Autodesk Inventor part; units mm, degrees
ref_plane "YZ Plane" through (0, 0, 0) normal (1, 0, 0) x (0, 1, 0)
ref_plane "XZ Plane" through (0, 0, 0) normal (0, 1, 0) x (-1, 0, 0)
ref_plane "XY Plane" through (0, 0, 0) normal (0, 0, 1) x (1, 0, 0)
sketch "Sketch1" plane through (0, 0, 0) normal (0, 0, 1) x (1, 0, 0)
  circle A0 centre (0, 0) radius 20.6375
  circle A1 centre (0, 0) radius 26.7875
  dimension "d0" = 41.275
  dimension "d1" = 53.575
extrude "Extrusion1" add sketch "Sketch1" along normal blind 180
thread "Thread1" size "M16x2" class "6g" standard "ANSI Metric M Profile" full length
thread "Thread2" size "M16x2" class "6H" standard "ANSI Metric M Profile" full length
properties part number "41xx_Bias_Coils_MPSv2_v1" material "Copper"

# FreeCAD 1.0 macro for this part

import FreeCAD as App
import Part
import Sketcher

doc = App.newDocument("Part")
body = doc.addObject("PartDesign::Body", "Body")

# Sketch on XY plane
sketch1 = body.newObject("Sketcher::SketchObject", "Sketch")
sketch1.AttachmentSupport = (doc.getObject("XY_Plane"), [""])
sketch1.MapMode = "FlatFace"
sketch1.addGeometry([
    Part.Circle(App.Vector(0, 0, 0), App.Vector(0, 0, 1), 26.7875),
    Part.Circle(App.Vector(0, 0, 0), App.Vector(0, 0, 1), 20.6375),
], False)
sketch1.addConstraint([
    Sketcher.Constraint("Coincident", 0, 3, -1, 1),
    Sketcher.Constraint("Coincident", 1, 3, -1, 1),
    Sketcher.Constraint("Diameter", 0, 53.575),
    Sketcher.Constraint("Diameter", 1, 41.275),
])
pad1 = body.newObject("PartDesign::Pad", "Pad")
pad1.Profile = sketch1
pad1.Length = 180

doc.recompute()
